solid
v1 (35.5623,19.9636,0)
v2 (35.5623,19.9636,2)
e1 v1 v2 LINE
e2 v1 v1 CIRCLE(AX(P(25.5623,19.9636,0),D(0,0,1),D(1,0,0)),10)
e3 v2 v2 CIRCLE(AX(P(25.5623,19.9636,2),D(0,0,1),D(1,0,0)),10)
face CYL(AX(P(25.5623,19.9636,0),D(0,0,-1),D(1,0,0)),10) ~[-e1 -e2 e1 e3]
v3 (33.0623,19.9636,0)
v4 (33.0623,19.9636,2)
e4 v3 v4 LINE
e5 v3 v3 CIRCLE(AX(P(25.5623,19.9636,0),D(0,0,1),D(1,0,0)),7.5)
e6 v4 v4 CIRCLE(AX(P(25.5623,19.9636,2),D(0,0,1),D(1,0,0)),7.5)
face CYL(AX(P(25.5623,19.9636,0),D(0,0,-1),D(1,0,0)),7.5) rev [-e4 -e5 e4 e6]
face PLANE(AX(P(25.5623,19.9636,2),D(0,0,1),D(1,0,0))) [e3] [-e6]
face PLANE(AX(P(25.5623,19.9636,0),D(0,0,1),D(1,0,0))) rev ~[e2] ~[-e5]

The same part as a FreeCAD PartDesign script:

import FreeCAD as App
import Part
import Sketcher
Q = App.Units.Quantity

doc = App.newDocument("Part")
body = doc.addObject("PartDesign::Body", "Body")

# Sketch on XY plane
sketch1 = body.newObject("Sketcher::SketchObject", "Sketch")
sketch1.AttachmentSupport = (doc.getObject("XY_Plane"), [""])
sketch1.MapMode = "FlatFace"
sketch1.addGeometry(Part.Circle(App.Vector(26, 20, 0), App.Vector(0, 0, 1), 10), False)
sketch1.addGeometry(Part.Circle(App.Vector(26, 20, 0), App.Vector(0, 0, 1), 8), False)
sketch1.addConstraint(Sketcher.Constraint("Coincident", 1, 3, 0, 3))
sketch1.addConstraint(Sketcher.Constraint("Diameter", 0, Q("20 mm")))
sketch1.addConstraint(Sketcher.Constraint("Diameter", 1, Q("15 mm")))
sketch1.addConstraint(Sketcher.Constraint("DistanceX", -1, 1, 0, 3, Q("25.5623 mm")))
sketch1.addConstraint(Sketcher.Constraint("DistanceY", -1, 1, 0, 3, Q("19.9636 mm")))
pad1 = body.newObject("PartDesign::Pad", "Pad")
pad1.Profile = sketch1
pad1.Length = 2

doc.recompute()
